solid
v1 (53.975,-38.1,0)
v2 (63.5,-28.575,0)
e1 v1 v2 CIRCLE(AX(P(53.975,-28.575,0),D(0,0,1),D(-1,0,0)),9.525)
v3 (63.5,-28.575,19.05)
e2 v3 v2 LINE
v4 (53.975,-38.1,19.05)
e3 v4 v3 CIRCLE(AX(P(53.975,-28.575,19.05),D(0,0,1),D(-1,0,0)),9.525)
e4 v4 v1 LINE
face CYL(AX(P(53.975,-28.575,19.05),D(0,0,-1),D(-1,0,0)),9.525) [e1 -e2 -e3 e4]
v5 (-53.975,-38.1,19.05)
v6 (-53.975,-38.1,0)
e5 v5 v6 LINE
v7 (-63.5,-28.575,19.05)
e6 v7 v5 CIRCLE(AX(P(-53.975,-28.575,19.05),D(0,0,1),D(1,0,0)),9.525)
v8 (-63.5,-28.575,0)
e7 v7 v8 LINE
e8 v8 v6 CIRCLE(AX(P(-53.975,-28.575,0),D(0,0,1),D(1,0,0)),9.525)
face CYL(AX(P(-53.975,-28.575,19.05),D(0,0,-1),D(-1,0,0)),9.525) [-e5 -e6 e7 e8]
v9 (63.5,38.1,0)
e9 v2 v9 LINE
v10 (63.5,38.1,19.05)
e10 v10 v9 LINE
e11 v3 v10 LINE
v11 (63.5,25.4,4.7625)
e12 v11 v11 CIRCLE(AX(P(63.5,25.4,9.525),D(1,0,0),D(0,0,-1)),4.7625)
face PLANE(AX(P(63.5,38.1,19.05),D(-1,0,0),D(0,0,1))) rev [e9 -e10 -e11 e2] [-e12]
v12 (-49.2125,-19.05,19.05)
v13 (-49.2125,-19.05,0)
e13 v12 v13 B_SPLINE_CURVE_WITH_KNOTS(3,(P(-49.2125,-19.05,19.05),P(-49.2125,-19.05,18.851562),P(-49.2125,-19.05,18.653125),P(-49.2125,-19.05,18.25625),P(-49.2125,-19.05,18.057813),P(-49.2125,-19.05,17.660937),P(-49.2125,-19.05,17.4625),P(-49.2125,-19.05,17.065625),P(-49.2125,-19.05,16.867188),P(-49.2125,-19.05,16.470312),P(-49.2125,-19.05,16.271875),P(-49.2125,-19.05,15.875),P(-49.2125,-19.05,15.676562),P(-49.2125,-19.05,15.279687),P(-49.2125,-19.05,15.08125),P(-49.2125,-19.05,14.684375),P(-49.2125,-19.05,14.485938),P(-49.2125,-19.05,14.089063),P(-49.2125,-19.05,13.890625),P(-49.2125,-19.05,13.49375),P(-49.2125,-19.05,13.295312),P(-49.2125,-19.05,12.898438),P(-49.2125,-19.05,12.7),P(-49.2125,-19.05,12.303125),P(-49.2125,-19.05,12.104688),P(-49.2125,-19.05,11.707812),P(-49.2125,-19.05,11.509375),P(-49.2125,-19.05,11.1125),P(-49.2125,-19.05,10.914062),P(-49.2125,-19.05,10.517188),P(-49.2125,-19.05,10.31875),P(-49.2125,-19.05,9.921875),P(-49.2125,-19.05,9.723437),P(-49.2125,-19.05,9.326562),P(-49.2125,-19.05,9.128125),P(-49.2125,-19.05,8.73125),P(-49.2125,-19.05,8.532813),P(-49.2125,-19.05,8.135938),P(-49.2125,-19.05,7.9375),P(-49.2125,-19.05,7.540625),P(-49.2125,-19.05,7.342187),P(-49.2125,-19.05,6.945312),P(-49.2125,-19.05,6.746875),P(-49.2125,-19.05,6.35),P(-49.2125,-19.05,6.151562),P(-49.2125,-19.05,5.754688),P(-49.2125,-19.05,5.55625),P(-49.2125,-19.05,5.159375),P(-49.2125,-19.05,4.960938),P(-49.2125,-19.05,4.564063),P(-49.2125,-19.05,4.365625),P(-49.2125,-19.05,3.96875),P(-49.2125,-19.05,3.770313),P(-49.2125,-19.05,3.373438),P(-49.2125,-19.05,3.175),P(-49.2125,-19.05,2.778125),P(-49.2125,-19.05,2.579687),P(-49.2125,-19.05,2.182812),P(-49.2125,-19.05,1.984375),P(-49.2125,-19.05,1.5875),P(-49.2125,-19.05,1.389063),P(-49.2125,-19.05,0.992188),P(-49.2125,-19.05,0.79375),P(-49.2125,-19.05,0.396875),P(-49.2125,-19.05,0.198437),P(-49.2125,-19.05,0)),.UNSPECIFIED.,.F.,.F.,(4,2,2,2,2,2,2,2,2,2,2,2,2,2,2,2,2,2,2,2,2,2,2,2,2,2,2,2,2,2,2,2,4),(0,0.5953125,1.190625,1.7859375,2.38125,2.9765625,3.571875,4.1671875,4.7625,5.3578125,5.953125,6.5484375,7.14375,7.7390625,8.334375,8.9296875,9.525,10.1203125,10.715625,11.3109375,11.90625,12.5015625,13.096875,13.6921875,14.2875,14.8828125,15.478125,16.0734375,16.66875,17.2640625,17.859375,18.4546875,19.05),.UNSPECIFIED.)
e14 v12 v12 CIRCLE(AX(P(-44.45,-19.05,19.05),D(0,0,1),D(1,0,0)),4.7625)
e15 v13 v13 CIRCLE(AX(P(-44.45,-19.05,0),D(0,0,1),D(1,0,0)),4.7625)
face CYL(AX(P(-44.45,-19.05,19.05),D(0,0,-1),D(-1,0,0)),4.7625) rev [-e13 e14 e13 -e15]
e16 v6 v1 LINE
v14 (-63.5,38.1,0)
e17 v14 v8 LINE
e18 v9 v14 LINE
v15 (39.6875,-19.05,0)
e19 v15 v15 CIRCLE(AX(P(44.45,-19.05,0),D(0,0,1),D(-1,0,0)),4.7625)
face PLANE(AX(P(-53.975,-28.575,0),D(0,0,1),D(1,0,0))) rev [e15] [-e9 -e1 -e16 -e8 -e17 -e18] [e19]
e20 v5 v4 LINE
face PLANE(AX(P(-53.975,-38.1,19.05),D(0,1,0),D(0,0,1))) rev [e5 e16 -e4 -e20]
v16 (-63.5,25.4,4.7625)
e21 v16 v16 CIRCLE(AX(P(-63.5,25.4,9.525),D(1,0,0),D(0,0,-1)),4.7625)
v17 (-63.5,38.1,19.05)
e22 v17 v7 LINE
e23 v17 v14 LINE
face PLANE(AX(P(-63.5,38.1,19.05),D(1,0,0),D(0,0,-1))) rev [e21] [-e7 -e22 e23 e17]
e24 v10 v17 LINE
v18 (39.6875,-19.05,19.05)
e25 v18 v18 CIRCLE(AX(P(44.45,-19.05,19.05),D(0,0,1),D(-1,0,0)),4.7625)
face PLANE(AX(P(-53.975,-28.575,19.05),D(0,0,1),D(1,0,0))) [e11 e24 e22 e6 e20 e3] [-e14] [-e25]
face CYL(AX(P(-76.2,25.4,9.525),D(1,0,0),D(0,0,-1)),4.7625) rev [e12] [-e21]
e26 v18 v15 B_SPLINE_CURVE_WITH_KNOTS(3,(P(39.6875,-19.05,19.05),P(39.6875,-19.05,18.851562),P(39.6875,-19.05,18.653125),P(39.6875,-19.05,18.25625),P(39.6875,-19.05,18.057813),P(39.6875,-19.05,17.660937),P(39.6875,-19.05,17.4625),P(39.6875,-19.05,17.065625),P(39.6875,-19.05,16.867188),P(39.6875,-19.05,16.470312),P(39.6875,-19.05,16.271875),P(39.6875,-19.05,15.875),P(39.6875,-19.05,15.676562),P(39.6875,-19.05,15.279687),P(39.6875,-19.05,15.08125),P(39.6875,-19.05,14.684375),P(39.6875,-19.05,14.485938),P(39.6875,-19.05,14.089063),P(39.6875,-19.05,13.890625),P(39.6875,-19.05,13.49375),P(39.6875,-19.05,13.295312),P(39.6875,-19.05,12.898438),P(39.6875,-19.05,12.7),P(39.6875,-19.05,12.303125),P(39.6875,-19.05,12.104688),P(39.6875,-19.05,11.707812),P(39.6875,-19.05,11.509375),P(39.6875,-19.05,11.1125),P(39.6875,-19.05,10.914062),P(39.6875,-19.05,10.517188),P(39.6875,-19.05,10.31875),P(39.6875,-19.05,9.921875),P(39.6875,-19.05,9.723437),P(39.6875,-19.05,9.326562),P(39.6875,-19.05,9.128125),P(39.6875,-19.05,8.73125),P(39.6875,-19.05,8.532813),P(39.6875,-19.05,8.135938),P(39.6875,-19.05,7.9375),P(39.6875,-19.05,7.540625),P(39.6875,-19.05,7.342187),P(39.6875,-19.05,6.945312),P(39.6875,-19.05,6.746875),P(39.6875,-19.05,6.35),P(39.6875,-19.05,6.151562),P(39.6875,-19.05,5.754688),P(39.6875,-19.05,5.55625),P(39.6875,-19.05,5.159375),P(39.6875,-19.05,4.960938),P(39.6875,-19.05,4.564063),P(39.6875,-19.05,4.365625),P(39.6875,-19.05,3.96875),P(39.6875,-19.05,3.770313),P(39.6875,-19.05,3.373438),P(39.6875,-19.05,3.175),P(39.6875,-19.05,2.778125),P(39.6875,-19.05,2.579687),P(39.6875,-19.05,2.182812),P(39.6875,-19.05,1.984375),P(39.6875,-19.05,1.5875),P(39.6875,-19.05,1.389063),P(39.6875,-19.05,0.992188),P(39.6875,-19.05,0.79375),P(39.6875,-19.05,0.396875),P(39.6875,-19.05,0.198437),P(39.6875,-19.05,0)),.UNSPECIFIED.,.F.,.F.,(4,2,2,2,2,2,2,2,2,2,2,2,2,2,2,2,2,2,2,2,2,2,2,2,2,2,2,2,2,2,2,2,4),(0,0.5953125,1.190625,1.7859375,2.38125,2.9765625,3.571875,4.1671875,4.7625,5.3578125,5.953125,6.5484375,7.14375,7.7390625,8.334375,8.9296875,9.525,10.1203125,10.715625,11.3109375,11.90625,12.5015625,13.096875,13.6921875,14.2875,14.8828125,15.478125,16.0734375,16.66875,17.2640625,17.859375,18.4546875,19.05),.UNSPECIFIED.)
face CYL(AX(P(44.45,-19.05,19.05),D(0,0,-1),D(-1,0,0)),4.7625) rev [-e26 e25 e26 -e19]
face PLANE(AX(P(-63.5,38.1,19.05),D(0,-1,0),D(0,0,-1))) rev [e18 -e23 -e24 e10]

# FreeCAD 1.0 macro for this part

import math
import FreeCAD as App
import Part
import Sketcher

V = App.Vector
Q = App.Units.Quantity

doc = App.newDocument("Part")
body = doc.addObject("PartDesign::Body", "Body")

# Sketch on XY plane
sketch1 = body.newObject("Sketcher::SketchObject", "Sketch")
sketch1.AttachmentSupport = (doc.getObject("XY_Plane"), [""])
sketch1.MapMode = "FlatFace"
sketch1.addGeometry([
    Part.LineSegment(V(63.5, 38.1, 0), V(-63.5, 38.1, 0)),  # 0
    Part.LineSegment(V(-63.5, 38.1, 0), V(-63.5, -28.6, 0)),  # 1
    Part.ArcOfCircle(Part.Circle(V(-54, -28.6, 0), V(0, 0, 1), 9.5), math.radians(180), math.radians(270)),  # 2
    Part.LineSegment(V(-54, -38.1, 0), V(54, -38.1, 0)),  # 3
    Part.ArcOfCircle(Part.Circle(V(54, -28.6, 0), V(0, 0, 1), 9.5), math.radians(-90), math.radians(0)),  # 4
    Part.LineSegment(V(63.5, -28.6, 0), V(63.5, 38.1, 0)),  # 5
    Part.Circle(V(44.5, -19.1, 0), V(0, 0, 1), 4.8),  # 6
    Part.Circle(V(-44.5, -19.1, 0), V(0, 0, 1), 4.8),  # 7
], False)
sketch1.addConstraint([
    Sketcher.Constraint("Coincident", 0, 2, 1, 1),
    Sketcher.Constraint("Tangent", 1, 2, 2, 1),
    Sketcher.Constraint("Tangent", 2, 2, 3, 1),
    Sketcher.Constraint("Tangent", 3, 2, 4, 1),
    Sketcher.Constraint("Tangent", 4, 2, 5, 1),
    Sketcher.Constraint("Coincident", 5, 2, 0, 1),
    Sketcher.Constraint("Horizontal", 0),
    Sketcher.Constraint("Vertical", 1),
    Sketcher.Constraint("Horizontal", 3),
    Sketcher.Constraint("Vertical", 5),
    Sketcher.Constraint("Equal", 2, 4),
    Sketcher.Constraint("Equal", 6, 7),
    Sketcher.Constraint("Symmetric", 6, 3, 7, 3, -2),
    Sketcher.Constraint("DistanceX", 0, 2, 0, 1, Q("5 in")),
    Sketcher.Constraint("Diameter", 6, Q("0.375 in")),
    Sketcher.Constraint("Radius", 2, Q("0.375 in")),
    Sketcher.Constraint("DistanceY", 2, 2, 0, 2, Q("3 in")),
    Sketcher.Constraint("DistanceX", 0, 2, -1, 1, Q("2.5 in")),
    Sketcher.Constraint("DistanceY", -1, 1, 0, 2, Q("1.5 in")),
    Sketcher.Constraint("DistanceX", 7, 3, 6, 3, Q("3.5 in")),
    Sketcher.Constraint("DistanceY", 6, 3, -1, 1, Q("0.75 in")),
])
pad1 = body.newObject("PartDesign::Pad", "Pad")
pad1.Profile = sketch1
pad1.Length = Q("0.75 in")

# Sketch on YZ plane
sketch2 = body.newObject("Sketcher::SketchObject", "Sketch001")
sketch2.AttachmentSupport = (doc.getObject("YZ_Plane"), [""])
sketch2.MapMode = "FlatFace"
sketch2.AttachmentOffset = App.Placement(V(0, 0, 2.5 * 25.4), App.Rotation())
sketch2.addGeometry(Part.Circle(V(25.4, 9.5, 0), V(0, 0, 1), 4.8), False)
sketch2.addConstraint([
    Sketcher.Constraint("Diameter", 0, Q("0.375 in")),
    Sketcher.Constraint("DistanceX", -1, 1, 0, 3, Q("1 in")),
    Sketcher.Constraint("DistanceY", -1, 1, 0, 3, Q("0.375 in")),
])
pocket1 = body.newObject("PartDesign::Pocket", "Pocket")
pocket1.Profile = sketch2
pocket1.Length = Q("5.5 in")

doc.recompute()
